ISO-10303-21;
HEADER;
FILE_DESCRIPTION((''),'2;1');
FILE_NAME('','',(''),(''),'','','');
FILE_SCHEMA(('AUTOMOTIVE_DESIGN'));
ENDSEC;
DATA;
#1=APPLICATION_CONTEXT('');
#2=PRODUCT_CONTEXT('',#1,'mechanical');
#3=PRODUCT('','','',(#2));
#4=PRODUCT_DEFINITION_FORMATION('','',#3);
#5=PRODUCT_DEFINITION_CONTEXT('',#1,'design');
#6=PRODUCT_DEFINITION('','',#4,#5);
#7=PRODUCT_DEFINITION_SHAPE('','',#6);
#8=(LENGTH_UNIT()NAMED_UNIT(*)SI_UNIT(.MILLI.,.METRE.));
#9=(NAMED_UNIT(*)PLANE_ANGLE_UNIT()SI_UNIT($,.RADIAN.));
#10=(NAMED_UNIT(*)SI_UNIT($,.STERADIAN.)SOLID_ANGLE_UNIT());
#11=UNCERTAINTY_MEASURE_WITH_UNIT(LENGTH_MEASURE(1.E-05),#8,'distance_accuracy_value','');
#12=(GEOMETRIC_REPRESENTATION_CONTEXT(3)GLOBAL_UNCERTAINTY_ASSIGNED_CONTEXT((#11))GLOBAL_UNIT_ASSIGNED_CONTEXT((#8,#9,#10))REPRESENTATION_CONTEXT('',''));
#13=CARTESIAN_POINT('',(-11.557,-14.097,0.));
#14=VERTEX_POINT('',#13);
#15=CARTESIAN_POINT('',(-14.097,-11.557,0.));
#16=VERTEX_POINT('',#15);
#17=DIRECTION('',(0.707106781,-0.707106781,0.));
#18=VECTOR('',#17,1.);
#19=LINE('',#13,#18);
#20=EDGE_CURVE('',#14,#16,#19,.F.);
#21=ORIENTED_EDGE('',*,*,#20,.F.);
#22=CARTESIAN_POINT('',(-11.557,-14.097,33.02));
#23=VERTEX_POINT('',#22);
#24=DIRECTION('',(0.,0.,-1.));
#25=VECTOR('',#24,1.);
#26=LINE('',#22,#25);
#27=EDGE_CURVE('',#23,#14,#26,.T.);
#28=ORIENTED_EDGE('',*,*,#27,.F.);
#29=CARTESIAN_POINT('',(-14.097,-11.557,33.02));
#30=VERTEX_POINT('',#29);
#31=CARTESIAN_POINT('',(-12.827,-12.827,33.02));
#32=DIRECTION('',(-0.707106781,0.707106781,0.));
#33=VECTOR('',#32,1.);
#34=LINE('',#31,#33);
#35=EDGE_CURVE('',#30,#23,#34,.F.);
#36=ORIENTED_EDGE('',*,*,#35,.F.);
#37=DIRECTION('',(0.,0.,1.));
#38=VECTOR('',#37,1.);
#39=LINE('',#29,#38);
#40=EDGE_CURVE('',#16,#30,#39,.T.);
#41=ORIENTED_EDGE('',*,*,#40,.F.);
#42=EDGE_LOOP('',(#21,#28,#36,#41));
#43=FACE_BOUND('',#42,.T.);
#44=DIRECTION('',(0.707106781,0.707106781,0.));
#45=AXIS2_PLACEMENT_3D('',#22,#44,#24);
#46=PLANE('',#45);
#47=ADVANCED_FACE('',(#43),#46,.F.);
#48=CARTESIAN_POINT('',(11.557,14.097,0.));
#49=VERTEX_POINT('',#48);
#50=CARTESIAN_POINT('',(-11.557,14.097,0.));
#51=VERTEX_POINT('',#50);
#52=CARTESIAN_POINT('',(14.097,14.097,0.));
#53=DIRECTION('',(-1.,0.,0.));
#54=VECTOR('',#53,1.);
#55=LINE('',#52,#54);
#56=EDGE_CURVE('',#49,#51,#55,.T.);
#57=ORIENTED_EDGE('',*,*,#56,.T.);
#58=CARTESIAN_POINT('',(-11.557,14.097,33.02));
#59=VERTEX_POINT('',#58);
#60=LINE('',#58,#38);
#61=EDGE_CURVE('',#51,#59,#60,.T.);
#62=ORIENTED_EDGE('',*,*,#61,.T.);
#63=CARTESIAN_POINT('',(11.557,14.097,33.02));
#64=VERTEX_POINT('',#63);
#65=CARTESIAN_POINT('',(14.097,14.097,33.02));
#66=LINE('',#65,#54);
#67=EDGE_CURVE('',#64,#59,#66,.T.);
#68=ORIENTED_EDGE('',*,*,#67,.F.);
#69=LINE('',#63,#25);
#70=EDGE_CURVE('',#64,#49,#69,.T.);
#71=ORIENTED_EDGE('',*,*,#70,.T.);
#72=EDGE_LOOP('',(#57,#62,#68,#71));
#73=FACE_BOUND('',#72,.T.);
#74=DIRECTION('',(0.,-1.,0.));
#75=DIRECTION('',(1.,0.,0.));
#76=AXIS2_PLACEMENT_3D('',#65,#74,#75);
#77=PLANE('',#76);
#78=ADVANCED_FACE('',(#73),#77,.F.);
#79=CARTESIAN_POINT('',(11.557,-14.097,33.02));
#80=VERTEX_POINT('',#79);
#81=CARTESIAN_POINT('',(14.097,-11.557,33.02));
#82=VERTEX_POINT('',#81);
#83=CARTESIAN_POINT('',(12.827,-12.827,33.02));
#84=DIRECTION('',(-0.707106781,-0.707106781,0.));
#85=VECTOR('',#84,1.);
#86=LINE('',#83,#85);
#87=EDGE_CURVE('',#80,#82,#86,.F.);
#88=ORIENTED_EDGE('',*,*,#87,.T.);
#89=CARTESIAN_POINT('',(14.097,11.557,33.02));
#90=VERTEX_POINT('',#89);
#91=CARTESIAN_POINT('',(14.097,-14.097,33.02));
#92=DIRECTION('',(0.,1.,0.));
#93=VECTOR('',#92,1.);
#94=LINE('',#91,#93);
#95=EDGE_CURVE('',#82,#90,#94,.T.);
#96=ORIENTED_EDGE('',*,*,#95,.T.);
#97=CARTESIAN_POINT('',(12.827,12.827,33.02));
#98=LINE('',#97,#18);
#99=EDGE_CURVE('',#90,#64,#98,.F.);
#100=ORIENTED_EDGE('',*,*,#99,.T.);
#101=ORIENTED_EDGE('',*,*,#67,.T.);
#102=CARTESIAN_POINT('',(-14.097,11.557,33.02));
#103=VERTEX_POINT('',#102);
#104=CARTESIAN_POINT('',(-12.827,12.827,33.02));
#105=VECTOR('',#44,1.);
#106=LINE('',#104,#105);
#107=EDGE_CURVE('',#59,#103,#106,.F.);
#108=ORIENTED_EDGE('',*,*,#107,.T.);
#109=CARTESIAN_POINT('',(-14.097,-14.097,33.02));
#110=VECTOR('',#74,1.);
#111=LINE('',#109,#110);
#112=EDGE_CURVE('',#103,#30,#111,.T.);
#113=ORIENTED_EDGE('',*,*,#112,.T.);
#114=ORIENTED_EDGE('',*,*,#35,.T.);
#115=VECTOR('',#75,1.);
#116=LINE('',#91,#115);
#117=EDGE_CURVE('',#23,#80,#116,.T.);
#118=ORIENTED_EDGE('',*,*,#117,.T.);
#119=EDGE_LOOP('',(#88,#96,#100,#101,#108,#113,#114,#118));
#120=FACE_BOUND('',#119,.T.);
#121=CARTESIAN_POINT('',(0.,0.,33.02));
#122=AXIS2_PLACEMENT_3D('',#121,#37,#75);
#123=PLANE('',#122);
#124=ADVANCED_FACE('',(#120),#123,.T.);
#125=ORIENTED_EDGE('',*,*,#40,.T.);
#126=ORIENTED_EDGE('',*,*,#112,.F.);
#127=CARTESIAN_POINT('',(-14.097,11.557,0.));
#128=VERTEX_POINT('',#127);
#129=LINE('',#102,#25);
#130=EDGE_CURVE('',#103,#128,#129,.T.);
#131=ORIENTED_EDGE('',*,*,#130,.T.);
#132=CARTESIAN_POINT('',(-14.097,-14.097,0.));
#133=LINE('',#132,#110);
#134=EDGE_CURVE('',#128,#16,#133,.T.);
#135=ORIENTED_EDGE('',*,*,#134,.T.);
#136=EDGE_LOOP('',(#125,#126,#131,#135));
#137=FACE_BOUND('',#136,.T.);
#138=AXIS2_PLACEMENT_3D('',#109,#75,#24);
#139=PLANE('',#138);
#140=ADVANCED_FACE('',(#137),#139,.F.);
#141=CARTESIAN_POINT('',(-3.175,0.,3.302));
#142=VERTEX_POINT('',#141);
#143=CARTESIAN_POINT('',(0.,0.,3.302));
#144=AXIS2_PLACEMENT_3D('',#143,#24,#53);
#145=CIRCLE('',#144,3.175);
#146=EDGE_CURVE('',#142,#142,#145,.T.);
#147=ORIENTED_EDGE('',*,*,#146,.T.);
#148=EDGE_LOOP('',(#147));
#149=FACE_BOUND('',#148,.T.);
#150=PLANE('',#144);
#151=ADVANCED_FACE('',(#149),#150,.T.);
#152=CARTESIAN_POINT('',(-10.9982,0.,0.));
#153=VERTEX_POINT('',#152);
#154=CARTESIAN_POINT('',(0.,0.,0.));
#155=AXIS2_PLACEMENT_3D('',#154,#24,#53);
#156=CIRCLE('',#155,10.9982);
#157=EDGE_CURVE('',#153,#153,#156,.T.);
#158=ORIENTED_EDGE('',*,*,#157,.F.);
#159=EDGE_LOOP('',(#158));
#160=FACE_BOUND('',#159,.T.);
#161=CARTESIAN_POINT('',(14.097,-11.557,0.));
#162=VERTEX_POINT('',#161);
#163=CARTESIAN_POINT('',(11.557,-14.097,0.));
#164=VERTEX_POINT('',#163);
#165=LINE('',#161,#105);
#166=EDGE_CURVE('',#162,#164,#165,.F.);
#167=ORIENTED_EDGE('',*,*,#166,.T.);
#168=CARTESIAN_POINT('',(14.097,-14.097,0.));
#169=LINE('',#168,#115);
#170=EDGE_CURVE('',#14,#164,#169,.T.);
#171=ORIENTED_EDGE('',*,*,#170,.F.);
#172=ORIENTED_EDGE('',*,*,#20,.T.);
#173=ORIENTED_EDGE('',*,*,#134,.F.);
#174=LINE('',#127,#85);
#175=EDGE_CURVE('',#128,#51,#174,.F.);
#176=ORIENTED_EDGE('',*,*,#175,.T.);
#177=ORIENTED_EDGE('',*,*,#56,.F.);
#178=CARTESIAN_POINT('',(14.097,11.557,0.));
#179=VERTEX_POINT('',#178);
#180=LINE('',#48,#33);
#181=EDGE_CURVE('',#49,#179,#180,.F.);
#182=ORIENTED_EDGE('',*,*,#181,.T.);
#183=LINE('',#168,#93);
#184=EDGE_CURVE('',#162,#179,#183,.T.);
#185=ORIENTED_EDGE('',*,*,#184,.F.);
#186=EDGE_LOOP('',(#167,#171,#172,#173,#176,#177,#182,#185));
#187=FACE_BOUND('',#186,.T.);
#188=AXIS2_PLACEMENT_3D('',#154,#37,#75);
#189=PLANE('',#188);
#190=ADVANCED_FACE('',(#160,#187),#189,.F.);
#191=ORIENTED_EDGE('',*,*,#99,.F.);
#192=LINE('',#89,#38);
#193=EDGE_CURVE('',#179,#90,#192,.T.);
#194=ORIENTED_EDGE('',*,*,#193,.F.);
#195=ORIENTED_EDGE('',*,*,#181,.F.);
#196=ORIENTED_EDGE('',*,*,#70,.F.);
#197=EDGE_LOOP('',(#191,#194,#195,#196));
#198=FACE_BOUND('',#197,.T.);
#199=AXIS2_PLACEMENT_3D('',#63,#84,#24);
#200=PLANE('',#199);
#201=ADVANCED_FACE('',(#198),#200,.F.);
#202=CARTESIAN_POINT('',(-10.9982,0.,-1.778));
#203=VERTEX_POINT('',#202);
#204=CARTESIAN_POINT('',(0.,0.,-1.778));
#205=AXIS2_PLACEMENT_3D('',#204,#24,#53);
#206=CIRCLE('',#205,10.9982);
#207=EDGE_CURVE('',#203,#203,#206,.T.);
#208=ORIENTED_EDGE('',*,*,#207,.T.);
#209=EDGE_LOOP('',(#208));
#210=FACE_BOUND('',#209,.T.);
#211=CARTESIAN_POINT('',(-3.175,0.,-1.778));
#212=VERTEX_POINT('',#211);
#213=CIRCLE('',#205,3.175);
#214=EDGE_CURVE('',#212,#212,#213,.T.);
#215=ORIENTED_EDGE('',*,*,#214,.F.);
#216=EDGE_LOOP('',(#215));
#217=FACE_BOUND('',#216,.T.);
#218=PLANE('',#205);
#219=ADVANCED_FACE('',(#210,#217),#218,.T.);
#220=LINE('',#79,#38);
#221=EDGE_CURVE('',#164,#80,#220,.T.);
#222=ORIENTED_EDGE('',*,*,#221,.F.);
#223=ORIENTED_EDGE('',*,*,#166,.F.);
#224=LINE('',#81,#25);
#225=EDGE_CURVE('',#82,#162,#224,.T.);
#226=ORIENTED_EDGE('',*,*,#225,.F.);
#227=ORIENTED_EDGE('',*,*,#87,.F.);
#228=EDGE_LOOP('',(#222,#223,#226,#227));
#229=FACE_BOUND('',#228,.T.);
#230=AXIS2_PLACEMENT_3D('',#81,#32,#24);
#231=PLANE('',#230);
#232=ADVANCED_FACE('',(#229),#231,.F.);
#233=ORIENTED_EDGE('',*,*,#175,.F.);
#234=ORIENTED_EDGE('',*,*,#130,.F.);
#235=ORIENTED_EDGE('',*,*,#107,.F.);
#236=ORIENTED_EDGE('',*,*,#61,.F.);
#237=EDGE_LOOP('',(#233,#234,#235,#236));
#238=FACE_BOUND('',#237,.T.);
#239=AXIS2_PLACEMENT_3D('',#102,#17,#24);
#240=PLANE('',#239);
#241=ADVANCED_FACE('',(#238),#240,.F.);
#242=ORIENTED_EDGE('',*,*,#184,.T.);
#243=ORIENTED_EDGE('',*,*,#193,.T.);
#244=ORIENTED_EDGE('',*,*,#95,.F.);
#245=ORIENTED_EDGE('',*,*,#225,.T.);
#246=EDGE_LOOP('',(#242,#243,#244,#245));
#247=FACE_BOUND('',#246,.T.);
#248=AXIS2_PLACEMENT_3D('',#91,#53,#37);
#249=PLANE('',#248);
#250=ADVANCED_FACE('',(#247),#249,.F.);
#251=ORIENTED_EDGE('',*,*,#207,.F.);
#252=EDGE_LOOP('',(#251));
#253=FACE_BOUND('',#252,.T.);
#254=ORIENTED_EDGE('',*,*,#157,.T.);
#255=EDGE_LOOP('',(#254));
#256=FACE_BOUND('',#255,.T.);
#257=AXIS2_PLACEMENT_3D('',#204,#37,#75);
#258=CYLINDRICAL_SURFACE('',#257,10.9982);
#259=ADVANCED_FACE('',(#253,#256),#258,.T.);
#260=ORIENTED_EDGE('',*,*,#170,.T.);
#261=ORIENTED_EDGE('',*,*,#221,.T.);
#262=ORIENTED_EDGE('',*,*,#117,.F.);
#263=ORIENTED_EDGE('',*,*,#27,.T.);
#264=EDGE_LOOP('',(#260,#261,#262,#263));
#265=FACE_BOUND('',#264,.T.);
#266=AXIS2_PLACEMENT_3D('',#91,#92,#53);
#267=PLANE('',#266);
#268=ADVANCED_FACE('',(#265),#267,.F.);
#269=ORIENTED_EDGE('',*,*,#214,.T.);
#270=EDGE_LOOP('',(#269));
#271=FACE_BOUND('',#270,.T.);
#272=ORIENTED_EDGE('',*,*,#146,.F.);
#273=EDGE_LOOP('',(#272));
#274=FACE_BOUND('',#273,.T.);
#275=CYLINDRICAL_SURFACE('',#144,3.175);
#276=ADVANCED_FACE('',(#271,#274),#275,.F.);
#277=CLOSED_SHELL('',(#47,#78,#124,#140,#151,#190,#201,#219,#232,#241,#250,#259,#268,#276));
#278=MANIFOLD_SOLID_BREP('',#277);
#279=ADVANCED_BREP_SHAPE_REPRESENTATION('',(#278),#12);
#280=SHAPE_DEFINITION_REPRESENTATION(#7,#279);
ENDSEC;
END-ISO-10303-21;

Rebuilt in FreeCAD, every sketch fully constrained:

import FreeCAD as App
import Part
import Sketcher
Q = App.Units.Quantity


def edges_at(feature, points):
    """Names of the edges that pass closest to the given points."""
    edges = feature.Shape.Edges
    near = lambda p: min(range(len(edges)), key=lambda i: edges[i].distToShape(Part.Vertex(*p))[0])
    return sorted({f"Edge{near(p) + 1}" for p in points})


def add_polygon(sketch, points):
    """Adds a closed chain of lines whose ends are joined by coincident constraints."""
    first, n = sketch.GeometryCount, len(points)
    for a, b in zip(points, points[1:] + points[:1]):
        sketch.addGeometry(Part.LineSegment(App.Vector(*a, 0), App.Vector(*b, 0)), False)
    for i in range(n):
        sketch.addConstraint(Sketcher.Constraint("Coincident", first + i, 2, first + (i + 1) % n, 1))

doc = App.newDocument("Part")
body = doc.addObject("PartDesign::Body", "Body")

# Sketch on XY plane
sketch1 = body.newObject("Sketcher::SketchObject", "Sketch")
sketch1.AttachmentSupport = (doc.getObject("XY_Plane"), [""])
sketch1.MapMode = "FlatFace"
add_polygon(sketch1, [(-14.097, 14.097), (-14.097, -14.097), (14.097, -14.097), (14.097, 14.097)])  # lines 0-3
sketch1.addConstraint(Sketcher.Constraint("Vertical", 0))
sketch1.addConstraint(Sketcher.Constraint("Horizontal", 1))
sketch1.addConstraint(Sketcher.Constraint("Vertical", 2))
sketch1.addConstraint(Sketcher.Constraint("Horizontal", 3))
sketch1.addConstraint(Sketcher.Constraint("Symmetric", 0, 2, 2, 2, -1, 1))
sketch1.addConstraint(Sketcher.Constraint("Equal", 3, 0))
sketch1.addConstraint(Sketcher.Constraint("DistanceX", 1, 1, 1, 2, Q("1.11 in")))
pad1 = body.newObject("PartDesign::Pad", "Pad")
pad1.Profile = sketch1
pad1.Length = Q("1.3 in")

# Sketch on XY plane
sketch2 = body.newObject("Sketcher::SketchObject", "Sketch001")
sketch2.AttachmentSupport = (doc.getObject("XY_Plane"), [""])
sketch2.MapMode = "FlatFace"
sketch2.addGeometry(Part.Circle(App.Vector(0, 0, 0), App.Vector(0, 0, 1), 10.9982), False)
sketch2.addConstraint(Sketcher.Constraint("Coincident", 0, 3, -1, 1))
sketch2.addConstraint(Sketcher.Constraint("Diameter", 0, Q("0.866 in")))
pad2 = body.newObject("PartDesign::Pad", "Pad001")
pad2.Profile = sketch2
pad2.Length = Q("0.07 in")
pad2.Reversed = True

# Sketch on XY plane
sketch3 = body.newObject("Sketcher::SketchObject", "Sketch002")
sketch3.AttachmentSupport = (doc.getObject("XY_Plane"), [""])
sketch3.MapMode = "FlatFace"
sketch3.AttachmentOffset = App.Placement(App.Vector(0, 0, -0.07 * 25.4), App.Rotation())
sketch3.addGeometry(Part.Circle(App.Vector(0, 0, 0), App.Vector(0, 0, 1), 3.175), False)
sketch3.addConstraint(Sketcher.Constraint("Coincident", 0, 3, -1, 1))
sketch3.addConstraint(Sketcher.Constraint("Diameter", 0, Q("0.25 in")))
pocket1 = body.newObject("PartDesign::Pocket", "Pocket")
pocket1.Profile = sketch3
pocket1.Length = Q("0.2 in")
pocket1.Reversed = True
doc.recompute()

chamfer = body.newObject("PartDesign::Chamfer", "Chamfer")
chamfer.Base = (pocket1, edges_at(pocket1, [
    (-14.097, 14.097, 16.51),
    (14.097, 14.097, 16.51),
    (14.097, -14.097, 16.51),
    (-14.097, -14.097, 16.51),
]))
chamfer.Size = Q("0.1 in")

doc.recompute()
